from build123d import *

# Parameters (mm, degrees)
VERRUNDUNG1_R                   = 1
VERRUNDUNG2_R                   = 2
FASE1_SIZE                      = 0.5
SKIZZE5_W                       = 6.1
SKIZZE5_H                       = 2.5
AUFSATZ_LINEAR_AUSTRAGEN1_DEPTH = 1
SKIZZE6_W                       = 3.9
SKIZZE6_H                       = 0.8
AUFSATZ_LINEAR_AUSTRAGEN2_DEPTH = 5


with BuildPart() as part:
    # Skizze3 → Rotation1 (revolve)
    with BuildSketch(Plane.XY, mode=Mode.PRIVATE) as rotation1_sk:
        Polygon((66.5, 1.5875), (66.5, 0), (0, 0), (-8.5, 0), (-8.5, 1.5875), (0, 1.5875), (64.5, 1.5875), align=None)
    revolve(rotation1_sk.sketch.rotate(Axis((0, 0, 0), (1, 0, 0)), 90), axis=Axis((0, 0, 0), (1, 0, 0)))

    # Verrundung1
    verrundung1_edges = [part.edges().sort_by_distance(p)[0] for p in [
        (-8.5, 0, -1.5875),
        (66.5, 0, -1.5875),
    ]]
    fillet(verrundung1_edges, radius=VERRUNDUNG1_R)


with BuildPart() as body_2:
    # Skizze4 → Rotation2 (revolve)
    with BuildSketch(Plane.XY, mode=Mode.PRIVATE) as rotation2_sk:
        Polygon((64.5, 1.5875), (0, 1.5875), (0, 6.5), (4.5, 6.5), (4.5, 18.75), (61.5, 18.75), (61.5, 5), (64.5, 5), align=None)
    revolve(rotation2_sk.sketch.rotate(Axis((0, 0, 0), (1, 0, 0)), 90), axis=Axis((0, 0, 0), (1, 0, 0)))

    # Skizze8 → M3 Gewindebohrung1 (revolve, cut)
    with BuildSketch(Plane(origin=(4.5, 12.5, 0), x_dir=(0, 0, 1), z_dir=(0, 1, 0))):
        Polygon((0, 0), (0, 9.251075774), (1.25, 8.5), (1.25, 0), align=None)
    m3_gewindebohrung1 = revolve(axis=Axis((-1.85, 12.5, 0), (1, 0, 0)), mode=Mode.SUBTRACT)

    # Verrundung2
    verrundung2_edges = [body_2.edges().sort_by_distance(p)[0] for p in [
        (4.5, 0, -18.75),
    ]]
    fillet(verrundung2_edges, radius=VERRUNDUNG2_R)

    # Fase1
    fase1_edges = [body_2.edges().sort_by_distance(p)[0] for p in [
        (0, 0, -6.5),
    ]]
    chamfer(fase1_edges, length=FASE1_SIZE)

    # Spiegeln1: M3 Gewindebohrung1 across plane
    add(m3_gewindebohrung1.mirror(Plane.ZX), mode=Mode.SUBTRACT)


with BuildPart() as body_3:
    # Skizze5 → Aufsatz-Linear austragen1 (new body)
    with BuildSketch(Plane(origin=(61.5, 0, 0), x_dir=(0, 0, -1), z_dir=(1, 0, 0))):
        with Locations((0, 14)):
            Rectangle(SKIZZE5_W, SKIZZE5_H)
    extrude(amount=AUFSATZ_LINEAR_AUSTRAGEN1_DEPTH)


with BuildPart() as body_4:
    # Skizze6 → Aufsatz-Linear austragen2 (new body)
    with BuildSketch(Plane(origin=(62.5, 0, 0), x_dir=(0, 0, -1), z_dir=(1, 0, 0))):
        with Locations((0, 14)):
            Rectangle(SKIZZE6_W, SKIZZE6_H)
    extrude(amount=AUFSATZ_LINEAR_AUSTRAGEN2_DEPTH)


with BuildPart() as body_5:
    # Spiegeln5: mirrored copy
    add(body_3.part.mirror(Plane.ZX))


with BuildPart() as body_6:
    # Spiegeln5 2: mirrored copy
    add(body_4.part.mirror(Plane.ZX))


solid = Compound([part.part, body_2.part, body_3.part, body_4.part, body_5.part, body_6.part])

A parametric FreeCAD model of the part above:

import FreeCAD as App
import Part
import Sketcher
from FreeCAD import Vector
Q = App.Units.Quantity


def edges_at(feature, points):
    """Names of the edges that pass closest to the given points."""
    edges = feature.Shape.Edges
    near = lambda p: min(range(len(edges)), key=lambda i: edges[i].distToShape(Part.Vertex(*p))[0])
    return sorted({f"Edge{near(p) + 1}" for p in points})


def add_polygon(sketch, points):
    """Adds a closed chain of lines whose ends are joined by coincident constraints."""
    first, n = sketch.GeometryCount, len(points)
    for a, b in zip(points, points[1:] + points[:1]):
        sketch.addGeometry(Part.LineSegment(App.Vector(*a, 0), App.Vector(*b, 0)), False)
    for i in range(n):
        sketch.addConstraint(Sketcher.Constraint("Coincident", first + i, 2, first + (i + 1) % n, 1))

doc = App.newDocument("Part")
body = doc.addObject("PartDesign::Body", "Body")

# Sketch on XY plane
sketch1 = body.newObject("Sketcher::SketchObject", "Sketch")
sketch1.AttachmentSupport = (doc.getObject("XY_Plane"), [""])
sketch1.MapMode = "FlatFace"
add_polygon(sketch1, [(66.5, 0), (66.5, 1.6), (-8.5, 1.6), (-8.5, 0)])  # lines 0-3
sketch1.addConstraint([
    Sketcher.Constraint("Vertical", 0),
    Sketcher.Constraint("Horizontal", 1),
    Sketcher.Constraint("Vertical", 2),
    Sketcher.Constraint("Horizontal", 3),
    Sketcher.Constraint("PointOnObject", 2, 2, -1),
    Sketcher.Constraint("DistanceX", 1, 2, 1, 1, Q("75 mm")),
    Sketcher.Constraint("DistanceX", -1, 1, 0, 2, Q("66.5 mm")),
    Sketcher.Constraint("DistanceY", 0, 1, 0, 2, Q("1.5875 mm")),
])
revolution = body.newObject("PartDesign::Revolution", "Revolution")
revolution.Profile = sketch1
revolution.ReferenceAxis = (sketch1, ["H_Axis"])
revolution.Angle = 360
doc.recompute()

fillet = body.newObject("PartDesign::Fillet", "Fillet")
fillet.Base = (revolution, edges_at(revolution, [(-8.5, 0, -1.587), (66.5, 0, -1.587)]))
fillet.Radius = 1
body2 = doc.addObject("PartDesign::Body", "Body001")

# Sketch on XY plane
sketch2 = body2.newObject("Sketcher::SketchObject", "Sketch001")
sketch2.AttachmentSupport = (doc.getObject("XY_Plane001"), [""])
sketch2.MapMode = "FlatFace"
add_polygon(sketch2, [(0, 1.6), (64.5, 1.6), (64.5, 5), (61.5, 5), (61.5, 18.8), (4.5, 18.8), (4.5, 6.5), (0, 6.5)])  # lines 0-7
sketch2.addConstraint([
    Sketcher.Constraint("Horizontal", 0),
    Sketcher.Constraint("Vertical", 1),
    Sketcher.Constraint("Horizontal", 2),
    Sketcher.Constraint("Vertical", 3),
    Sketcher.Constraint("Horizontal", 4),
    Sketcher.Constraint("Vertical", 5),
    Sketcher.Constraint("Horizontal", 6),
    Sketcher.Constraint("Vertical", 7),
    Sketcher.Constraint("PointOnObject", 6, 2, -2),
    Sketcher.Constraint("DistanceX", 2, 2, 2, 1, Q("3 mm")),
    Sketcher.Constraint("DistanceX", 4, 2, 4, 1, Q("57 mm")),
    Sketcher.Constraint("DistanceX", 0, 1, 0, 2, Q("64.5 mm")),
    Sketcher.Constraint("DistanceY", -1, 1, 1, 2, Q("5 mm")),
    Sketcher.Constraint("DistanceY", 3, 1, 3, 2, Q("13.75 mm")),
    Sketcher.Constraint("DistanceY", 5, 2, 5, 1, Q("12.25 mm")),
    Sketcher.Constraint("DistanceY", 1, 1, 1, 2, Q("3.4125 mm")),
])
revolution2 = body2.newObject("PartDesign::Revolution", "Revolution001")
revolution2.Profile = sketch2
revolution2.ReferenceAxis = (sketch2, ["H_Axis"])
revolution2.Angle = 360

# Sketch on XZ plane
sketch3 = body2.newObject("Sketcher::SketchObject", "Sketch002")
sketch3.AttachmentSupport = (doc.getObject("XZ_Plane001"), [""])
sketch3.MapMode = "FlatFace"
sketch3.AttachmentOffset = App.Placement(Vector(0, 0, -12.5), App.Rotation())
add_polygon(sketch3, [(13.8, 0), (4.5, 0), (4.5, 1.2), (13, 1.2)])  # lines 0-3
sketch3.addConstraint([
    Sketcher.Constraint("Horizontal", 0),
    Sketcher.Constraint("Vertical", 1),
    Sketcher.Constraint("Horizontal", 2),
    Sketcher.Constraint("PointOnObject", 0, 2, -1),
    Sketcher.Constraint("Angle", 3, Q("-59 deg")),
    Sketcher.Constraint("DistanceX", 2, 1, 2, 2, Q("8.5 mm")),
    Sketcher.Constraint("DistanceX", -1, 1, 2, 2, Q("13 mm")),
    Sketcher.Constraint("DistanceY", 1, 1, 1, 2, Q("1.25 mm")),
])
groove = body2.newObject("PartDesign::Groove", "Groove")
groove.Profile = sketch3
groove.ReferenceAxis = (sketch3, ["H_Axis"])
groove.Angle = 360
doc.recompute()

fillet2 = body2.newObject("PartDesign::Fillet", "Fillet001")
fillet2.Base = (groove, edges_at(groove, [(4.5, 0, -18.75)]))
fillet2.Radius = 2
doc.recompute()

chamfer = body2.newObject("PartDesign::Chamfer", "Chamfer")
chamfer.Base = (fillet2, edges_at(fillet2, [(0, 0, -6.5)]))
chamfer.Size = 0.5
doc.recompute()

mirrored = body2.newObject("PartDesign::Mirrored", "Mirrored")
mirrored.Originals = [groove]
mirrored.MirrorPlane = (doc.getObject("XZ_Plane001"), [""])
body2.Tip = mirrored
body3 = doc.addObject("PartDesign::Body", "Body002")

# Sketch on YZ plane
sketch4 = body3.newObject("Sketcher::SketchObject", "Sketch003")
sketch4.AttachmentSupport = (doc.getObject("YZ_Plane002"), [""])
sketch4.MapMode = "FlatFace"
sketch4.AttachmentOffset = App.Placement(Vector(0, 0, 61.5), App.Rotation())
add_polygon(sketch4, [(15.2, 3), (12.8, 3), (12.8, -3), (15.2, -3)])  # lines 0-3
sketch4.addConstraint([
    Sketcher.Constraint("Horizontal", 0),
    Sketcher.Constraint("Vertical", 1),
    Sketcher.Constraint("Horizontal", 2),
    Sketcher.Constraint("Vertical", 3),
    Sketcher.Constraint("DistanceX", 0, 2, 0, 1, Q("2.5 mm")),
    Sketcher.Constraint("DistanceY", 1, 2, 1, 1, Q("6.1 mm")),
    Sketcher.Constraint("DistanceX", -1, 1, 0, 2, Q("12.75 mm")),
    Sketcher.Constraint("DistanceY", -1, 1, 0, 2, Q("3.05 mm")),
])
pad1 = body3.newObject("PartDesign::Pad", "Pad")
pad1.Profile = sketch4
pad1.Length = 1
body4 = doc.addObject("PartDesign::Body", "Body003")

# Sketch on YZ plane
sketch5 = body4.newObject("Sketcher::SketchObject", "Sketch004")
sketch5.AttachmentSupport = (doc.getObject("YZ_Plane003"), [""])
sketch5.MapMode = "FlatFace"
sketch5.AttachmentOffset = App.Placement(Vector(0, 0, 62.5), App.Rotation())
add_polygon(sketch5, [(14.4, 1.9), (13.6, 1.9), (13.6, -1.9), (14.4, -1.9)])  # lines 0-3
sketch5.addConstraint([
    Sketcher.Constraint("Horizontal", 0),
    Sketcher.Constraint("Vertical", 1),
    Sketcher.Constraint("Horizontal", 2),
    Sketcher.Constraint("Vertical", 3),
    Sketcher.Constraint("DistanceX", 0, 2, 0, 1, Q("0.8 mm")),
    Sketcher.Constraint("DistanceY", 1, 2, 1, 1, Q("3.9 mm")),
    Sketcher.Constraint("DistanceX", -1, 1, 0, 2, Q("13.6 mm")),
    Sketcher.Constraint("DistanceY", -1, 1, 0, 2, Q("1.95 mm")),
])
pad2 = body4.newObject("PartDesign::Pad", "Pad001")
pad2.Profile = sketch5
pad2.Length = 5
body5 = doc.addObject("PartDesign::Body", "Body004")
doc.recompute()

mirroring = doc.addObject("Part::Mirroring", "Mirroring")
mirroring.Source = body3
mirroring.Base = Vector(0, 0, 0)
mirroring.Normal = Vector(0, 1, 0)
body5.BaseFeature = mirroring
doc.recompute()
body6 = doc.addObject("PartDesign::Body", "Body005")
doc.recompute()

mirroring2 = doc.addObject("Part::Mirroring", "Mirroring001")
mirroring2.Source = body4
mirroring2.Base = Vector(0, 0, 0)
mirroring2.Normal = Vector(0, 1, 0)
body6.BaseFeature = mirroring2
doc.recompute()
mirroring.Visibility = False
mirroring2.Visibility = False

doc.recompute()
